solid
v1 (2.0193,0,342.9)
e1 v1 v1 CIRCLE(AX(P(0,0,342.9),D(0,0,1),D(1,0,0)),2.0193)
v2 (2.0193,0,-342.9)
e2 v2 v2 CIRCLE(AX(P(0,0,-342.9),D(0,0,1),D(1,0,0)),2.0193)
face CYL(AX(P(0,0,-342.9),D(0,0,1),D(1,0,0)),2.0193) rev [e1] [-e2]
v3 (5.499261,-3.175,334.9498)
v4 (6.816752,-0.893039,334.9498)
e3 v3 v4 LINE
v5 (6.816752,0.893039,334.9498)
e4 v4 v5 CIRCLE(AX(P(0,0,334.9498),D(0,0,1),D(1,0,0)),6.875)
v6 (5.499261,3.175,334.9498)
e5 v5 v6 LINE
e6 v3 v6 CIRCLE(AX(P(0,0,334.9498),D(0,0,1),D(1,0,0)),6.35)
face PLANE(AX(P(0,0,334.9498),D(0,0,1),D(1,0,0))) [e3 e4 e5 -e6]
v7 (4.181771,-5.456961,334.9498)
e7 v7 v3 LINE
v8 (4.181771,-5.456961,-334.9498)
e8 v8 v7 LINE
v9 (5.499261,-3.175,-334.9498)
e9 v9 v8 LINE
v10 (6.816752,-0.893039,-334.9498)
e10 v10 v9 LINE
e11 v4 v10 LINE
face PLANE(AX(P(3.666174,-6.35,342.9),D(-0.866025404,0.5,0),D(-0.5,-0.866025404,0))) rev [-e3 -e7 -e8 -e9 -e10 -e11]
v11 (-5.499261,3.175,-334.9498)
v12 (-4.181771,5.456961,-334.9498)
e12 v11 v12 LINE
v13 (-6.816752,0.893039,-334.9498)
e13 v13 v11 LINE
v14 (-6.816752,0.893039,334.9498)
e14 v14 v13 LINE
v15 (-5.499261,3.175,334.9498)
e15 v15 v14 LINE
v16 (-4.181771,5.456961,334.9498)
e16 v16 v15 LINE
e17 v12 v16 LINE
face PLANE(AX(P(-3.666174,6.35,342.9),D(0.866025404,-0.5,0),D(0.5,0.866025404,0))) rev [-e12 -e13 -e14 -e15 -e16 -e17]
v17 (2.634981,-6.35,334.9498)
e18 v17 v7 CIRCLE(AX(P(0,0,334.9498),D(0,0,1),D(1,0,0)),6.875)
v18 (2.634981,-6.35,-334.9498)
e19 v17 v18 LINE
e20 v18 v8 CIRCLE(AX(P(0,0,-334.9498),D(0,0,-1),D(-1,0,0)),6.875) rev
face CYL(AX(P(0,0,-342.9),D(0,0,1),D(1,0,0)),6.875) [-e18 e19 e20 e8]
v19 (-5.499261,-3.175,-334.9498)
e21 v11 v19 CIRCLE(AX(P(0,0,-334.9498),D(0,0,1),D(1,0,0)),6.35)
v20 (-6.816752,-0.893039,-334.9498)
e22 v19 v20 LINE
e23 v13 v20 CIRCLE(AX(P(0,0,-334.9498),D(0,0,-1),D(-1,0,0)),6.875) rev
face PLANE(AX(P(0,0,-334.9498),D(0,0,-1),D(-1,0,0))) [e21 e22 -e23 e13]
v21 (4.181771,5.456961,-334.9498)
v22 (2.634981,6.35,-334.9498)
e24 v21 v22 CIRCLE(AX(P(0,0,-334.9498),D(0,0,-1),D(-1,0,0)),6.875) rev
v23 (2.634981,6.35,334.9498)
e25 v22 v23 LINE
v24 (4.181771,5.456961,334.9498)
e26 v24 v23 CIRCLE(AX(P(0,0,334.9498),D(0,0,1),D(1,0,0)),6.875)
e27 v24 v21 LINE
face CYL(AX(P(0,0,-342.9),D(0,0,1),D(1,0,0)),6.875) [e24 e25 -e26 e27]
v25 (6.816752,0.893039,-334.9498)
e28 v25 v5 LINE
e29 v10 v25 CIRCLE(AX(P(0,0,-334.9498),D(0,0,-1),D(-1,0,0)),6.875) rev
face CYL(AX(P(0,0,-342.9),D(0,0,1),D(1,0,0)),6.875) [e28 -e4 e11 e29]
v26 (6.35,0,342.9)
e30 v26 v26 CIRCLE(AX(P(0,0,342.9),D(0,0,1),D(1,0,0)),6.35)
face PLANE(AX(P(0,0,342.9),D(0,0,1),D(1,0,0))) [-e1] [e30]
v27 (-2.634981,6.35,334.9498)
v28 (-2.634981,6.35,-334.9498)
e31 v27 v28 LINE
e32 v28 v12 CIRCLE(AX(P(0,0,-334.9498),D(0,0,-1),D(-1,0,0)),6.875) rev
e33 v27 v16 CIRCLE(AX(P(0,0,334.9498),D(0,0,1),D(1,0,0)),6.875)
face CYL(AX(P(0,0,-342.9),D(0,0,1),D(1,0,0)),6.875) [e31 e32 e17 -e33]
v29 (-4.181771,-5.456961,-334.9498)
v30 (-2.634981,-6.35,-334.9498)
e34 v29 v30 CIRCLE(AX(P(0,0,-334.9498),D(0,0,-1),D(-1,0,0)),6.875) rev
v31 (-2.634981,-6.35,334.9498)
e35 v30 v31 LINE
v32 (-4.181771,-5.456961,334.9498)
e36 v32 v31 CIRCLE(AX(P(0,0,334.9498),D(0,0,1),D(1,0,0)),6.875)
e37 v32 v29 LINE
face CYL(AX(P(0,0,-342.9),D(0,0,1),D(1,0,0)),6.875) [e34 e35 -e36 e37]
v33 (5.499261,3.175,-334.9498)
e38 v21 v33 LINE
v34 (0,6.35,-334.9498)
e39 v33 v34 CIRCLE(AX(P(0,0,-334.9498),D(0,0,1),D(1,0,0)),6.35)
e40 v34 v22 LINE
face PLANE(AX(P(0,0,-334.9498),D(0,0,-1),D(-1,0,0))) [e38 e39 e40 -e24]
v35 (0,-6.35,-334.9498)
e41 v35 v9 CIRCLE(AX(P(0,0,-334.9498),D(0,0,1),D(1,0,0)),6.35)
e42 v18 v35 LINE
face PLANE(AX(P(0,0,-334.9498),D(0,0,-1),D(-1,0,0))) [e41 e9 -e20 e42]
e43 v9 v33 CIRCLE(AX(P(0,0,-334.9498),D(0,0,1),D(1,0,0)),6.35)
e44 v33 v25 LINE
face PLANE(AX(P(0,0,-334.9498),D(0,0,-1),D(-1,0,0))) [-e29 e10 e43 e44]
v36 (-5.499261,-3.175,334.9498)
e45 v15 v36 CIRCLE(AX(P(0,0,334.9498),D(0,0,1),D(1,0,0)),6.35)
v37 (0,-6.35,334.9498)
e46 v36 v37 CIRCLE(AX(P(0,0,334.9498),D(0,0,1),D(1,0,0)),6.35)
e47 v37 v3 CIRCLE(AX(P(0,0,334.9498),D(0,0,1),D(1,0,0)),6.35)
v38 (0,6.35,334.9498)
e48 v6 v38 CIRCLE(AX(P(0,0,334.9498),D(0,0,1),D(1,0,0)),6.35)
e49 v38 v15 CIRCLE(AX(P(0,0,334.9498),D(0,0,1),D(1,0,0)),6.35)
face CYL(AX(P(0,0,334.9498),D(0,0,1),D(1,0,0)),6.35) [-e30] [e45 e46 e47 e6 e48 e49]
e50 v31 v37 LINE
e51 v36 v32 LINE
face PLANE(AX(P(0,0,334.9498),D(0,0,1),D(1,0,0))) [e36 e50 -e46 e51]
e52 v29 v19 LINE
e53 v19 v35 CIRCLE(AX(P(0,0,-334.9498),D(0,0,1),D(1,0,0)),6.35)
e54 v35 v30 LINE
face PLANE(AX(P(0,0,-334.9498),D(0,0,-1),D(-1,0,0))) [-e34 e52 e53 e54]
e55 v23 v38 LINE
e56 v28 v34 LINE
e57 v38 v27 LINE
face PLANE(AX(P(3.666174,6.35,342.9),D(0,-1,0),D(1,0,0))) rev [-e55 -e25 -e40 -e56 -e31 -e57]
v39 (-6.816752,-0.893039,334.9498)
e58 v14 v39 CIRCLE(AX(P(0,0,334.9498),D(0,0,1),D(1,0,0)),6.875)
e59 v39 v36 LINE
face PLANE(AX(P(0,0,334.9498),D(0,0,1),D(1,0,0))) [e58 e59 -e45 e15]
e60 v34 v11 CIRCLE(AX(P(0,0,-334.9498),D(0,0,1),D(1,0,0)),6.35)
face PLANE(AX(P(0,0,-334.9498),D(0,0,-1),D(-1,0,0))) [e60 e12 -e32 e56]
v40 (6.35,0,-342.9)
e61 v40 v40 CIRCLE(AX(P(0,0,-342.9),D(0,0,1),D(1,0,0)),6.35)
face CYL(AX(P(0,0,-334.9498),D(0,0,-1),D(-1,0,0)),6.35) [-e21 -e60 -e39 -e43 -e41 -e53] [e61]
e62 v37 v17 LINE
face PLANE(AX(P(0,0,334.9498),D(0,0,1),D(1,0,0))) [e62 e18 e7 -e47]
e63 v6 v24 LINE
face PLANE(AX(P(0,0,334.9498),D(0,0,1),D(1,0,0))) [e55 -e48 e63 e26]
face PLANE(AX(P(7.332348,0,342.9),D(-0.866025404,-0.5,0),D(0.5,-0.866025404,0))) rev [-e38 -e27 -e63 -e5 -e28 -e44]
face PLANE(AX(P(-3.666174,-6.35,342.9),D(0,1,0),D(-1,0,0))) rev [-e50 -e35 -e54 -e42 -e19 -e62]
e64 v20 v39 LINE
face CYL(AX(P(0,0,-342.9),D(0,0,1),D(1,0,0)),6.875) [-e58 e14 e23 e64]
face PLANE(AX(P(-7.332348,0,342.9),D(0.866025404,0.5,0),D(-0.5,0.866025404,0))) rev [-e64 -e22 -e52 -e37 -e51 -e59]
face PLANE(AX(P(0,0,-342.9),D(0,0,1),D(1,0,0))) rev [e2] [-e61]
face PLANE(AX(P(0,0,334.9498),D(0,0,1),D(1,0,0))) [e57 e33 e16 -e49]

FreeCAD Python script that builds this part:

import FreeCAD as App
import Part
import Sketcher

V = App.Vector
Q = App.Units.Quantity


def add_polygon(sketch, points):
    """Adds a closed chain of lines whose ends are joined by coincident constraints."""
    first, n = sketch.GeometryCount, len(points)
    for a, b in zip(points, points[1:] + points[:1]):
        sketch.addGeometry(Part.LineSegment(App.Vector(*a, 0), App.Vector(*b, 0)), False)
    for i in range(n):
        sketch.addConstraint(Sketcher.Constraint("Coincident", first + i, 2, first + (i + 1) % n, 1))

doc = App.newDocument("Part")
params = doc.addObject("Spreadsheet::Sheet", "Params")
for row, (alias, value) in enumerate([
    ("pad1_length", "27 in"),
    ("sketch2_diameter", "0.5 in"),
    ("pocket1_length", "0.313 in"),
    ("sketch4_diameter", "0.159 in"),
], start=1):
    params.set(f"A{row}", alias)
    params.set(f"B{row}", "=" + value)
    params.setAlias(f"B{row}", alias)

body = doc.addObject("PartDesign::Body", "Body")

# Sketch on XY plane
sketch1 = body.newObject("Sketcher::SketchObject", "Sketch")
sketch1.AttachmentSupport = (doc.getObject("XY_Plane"), [""])
sketch1.MapMode = "FlatFace"
add_polygon(sketch1, [(7, 0), (4, 6), (-4, 6), (-7, 0), (-4, -6), (4, -6)])  # lines 0-5
sketch1.addConstraint([
    Sketcher.Constraint("Horizontal", 1),
    Sketcher.Constraint("Horizontal", 4),
    Sketcher.Constraint("Symmetric", 0, 2, 3, 2, -1, 1),
    Sketcher.Constraint("Symmetric", 2, 2, 5, 2, -1, 1),
    Sketcher.Constraint("PointOnObject", 2, 2, -1),
    Sketcher.Constraint("Parallel", 2, 5),
    Sketcher.Constraint("Vertical", 1, 2, 3, 2),
    Sketcher.Constraint("Angle", 0, Q("120 deg")),
    Sketcher.Constraint("DistanceY", 3, 2, 1, 2, Q("0.5 in")),
    Sketcher.Constraint("DistanceX", 1, 2, 1, 1, Q("7.332348 mm")),
])
pad1 = body.newObject("PartDesign::Pad", "Pad")
pad1.Profile = sketch1
pad1.setExpression("Length", "Params.pad1_length")
pad1.Midplane = True

# Sketch on XY plane
sketch2 = body.newObject("Sketcher::SketchObject", "Sketch001")
sketch2.AttachmentSupport = (doc.getObject("XY_Plane"), [""])
sketch2.MapMode = "FlatFace"
sketch2.AttachmentOffset = App.Placement(V(0, 0, 13.5 * 25.4), App.Rotation())
add_polygon(sketch2, [(-77, 76), (-77, -76), (77, -76), (77, 76)])  # lines 0-3
sketch2.addGeometry(Part.Circle(V(0, 0, 0), V(0, 0, 1), 6), False)  # 4
sketch2.addConstraint([
    Sketcher.Constraint("Vertical", 0),
    Sketcher.Constraint("Horizontal", 1),
    Sketcher.Constraint("Vertical", 2),
    Sketcher.Constraint("Horizontal", 3),
    Sketcher.Constraint("Coincident", 4, 3, -1, 1),
    Sketcher.Constraint("Symmetric", 0, 2, 2, 2, -1, 1),
    Sketcher.Constraint("Diameter", 4, Q("0.5 in")),
    Sketcher.Constraint("DistanceX", 1, 1, 1, 2, Q("153.878 mm")),
    Sketcher.Constraint("DistanceY", 0, 2, 0, 1, Q("151.914 mm")),
])
sketch2.setExpression("Constraints[10]", "Params.sketch2_diameter")
pocket1 = body.newObject("PartDesign::Pocket", "Pocket")
pocket1.Profile = sketch2
pocket1.setExpression("Length", "Params.pocket1_length")

# Sketch on XY plane
sketch3 = body.newObject("Sketcher::SketchObject", "Sketch002")
sketch3.AttachmentSupport = (doc.getObject("XY_Plane"), [""])
sketch3.MapMode = "FlatFace"
sketch3.AttachmentOffset = App.Placement(V(0, 0, 13.5 * 25.4), App.Rotation())
add_polygon(sketch3, [(-77, 76), (-77, -76), (77, -76), (77, 76)])  # lines 0-3
sketch3.addGeometry(Part.Circle(V(0, 0, 0), V(0, 0, 1), 7), False)  # 4
sketch3.addConstraint([
    Sketcher.Constraint("Vertical", 0),
    Sketcher.Constraint("Horizontal", 1),
    Sketcher.Constraint("Vertical", 2),
    Sketcher.Constraint("Horizontal", 3),
    Sketcher.Constraint("Coincident", 4, 3, -1, 1),
    Sketcher.Constraint("Symmetric", 0, 2, 2, 2, -1, 1),
    Sketcher.Constraint("Diameter", 4, Q("13.75 mm")),
    Sketcher.Constraint("DistanceX", 1, 1, 1, 2, Q("153.878 mm")),
    Sketcher.Constraint("DistanceY", 0, 2, 0, 1, Q("151.914 mm")),
])
pocket2 = body.newObject("PartDesign::Pocket", "Pocket001")
pocket2.Profile = sketch3
pocket2.Type = "ThroughAll"
doc.recompute()

mirrored = body.newObject("PartDesign::Mirrored", "Mirrored")
mirrored.Originals = [pocket1]
mirrored.MirrorPlane = (doc.getObject("XY_Plane"), [""])
body.Tip = mirrored

# Sketch on XY plane
sketch4 = body.newObject("Sketcher::SketchObject", "Sketch003")
sketch4.AttachmentSupport = (doc.getObject("XY_Plane"), [""])
sketch4.MapMode = "FlatFace"
sketch4.AttachmentOffset = App.Placement(V(0, 0, 13.5 * 25.4), App.Rotation())
sketch4.addGeometry(Part.Circle(V(0, 0, 0), V(0, 0, 1), 2), False)
sketch4.addConstraint([
    Sketcher.Constraint("Coincident", 0, 3, -1, 1),
    Sketcher.Constraint("Diameter", 0, Q("0.159 in")),
])
sketch4.setExpression("Constraints[1]", "Params.sketch4_diameter")
pocket3 = body.newObject("PartDesign::Pocket", "Pocket002")
pocket3.Profile = sketch4
pocket3.Type = "ThroughAll"

doc.recompute()
